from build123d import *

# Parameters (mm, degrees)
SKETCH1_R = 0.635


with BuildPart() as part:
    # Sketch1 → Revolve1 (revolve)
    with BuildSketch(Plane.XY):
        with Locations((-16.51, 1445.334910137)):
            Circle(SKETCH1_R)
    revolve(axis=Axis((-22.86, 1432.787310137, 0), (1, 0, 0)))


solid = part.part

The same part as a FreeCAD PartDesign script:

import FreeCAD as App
import Part
import Sketcher
from FreeCAD import Vector
Q = App.Units.Quantity

doc = App.newDocument("Part")
body = doc.addObject("PartDesign::Body", "Body")

# Sketch on XY plane
sketch1 = body.newObject("Sketcher::SketchObject", "Sketch")
sketch1.AttachmentSupport = (doc.getObject("XY_Plane"), [""])
sketch1.MapMode = "FlatFace"
sketch1.addGeometry(Part.Circle(Vector(-16.5, 1445.3, 0), Vector(0, 0, 1), 0.6), False)
sketch1.addGeometry(Part.LineSegment(Vector(-16.5, 1432.8, 0), Vector(-6.5, 1432.8, 0)), True)  # axis
sketch1.addConstraint([
    Sketcher.Constraint("Horizontal", 1),
    Sketcher.Constraint("Vertical", 0, 3, 1, 1),
    Sketcher.Constraint("Diameter", 0, Q("0.05 in")),
    Sketcher.Constraint("DistanceX", 0, 3, -1, 1, Q("0.65 in")),
    Sketcher.Constraint("DistanceY", 1, 1, 0, 3, Q("0.494 in")),
    Sketcher.Constraint("DistanceX", 1, 1, 1, 2, Q("10 mm")),
    Sketcher.Constraint("DistanceY", -1, 1, 0, 3, Q("1445.33491 mm")),
])
revolution = body.newObject("PartDesign::Revolution", "Revolution")
revolution.Profile = sketch1
revolution.ReferenceAxis = (sketch1, ["Axis0"])
revolution.Angle = 360

doc.recompute()
